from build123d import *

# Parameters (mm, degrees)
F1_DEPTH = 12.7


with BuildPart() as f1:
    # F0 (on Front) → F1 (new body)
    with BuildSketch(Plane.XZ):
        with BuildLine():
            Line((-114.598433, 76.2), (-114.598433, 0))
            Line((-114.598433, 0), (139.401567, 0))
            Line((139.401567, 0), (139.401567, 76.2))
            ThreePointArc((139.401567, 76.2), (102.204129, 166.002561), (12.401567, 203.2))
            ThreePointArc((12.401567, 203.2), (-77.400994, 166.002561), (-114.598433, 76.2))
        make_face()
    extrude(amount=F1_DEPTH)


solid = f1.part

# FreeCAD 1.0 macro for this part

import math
import FreeCAD as App
import Part
import Sketcher
from FreeCAD import Vector
Q = App.Units.Quantity

doc = App.newDocument("Part")
params = doc.addObject("Spreadsheet::Sheet", "Params")
for row, (alias, value) in enumerate([
    ("sketch1_radius", "5 in"),
    ("sketch1_height", "3 in"),
    ("pad1_length", "0.5 in"),
], start=1):
    params.set(f"A{row}", alias)
    params.set(f"B{row}", "=" + value)
    params.setAlias(f"B{row}", alias)

body = doc.addObject("PartDesign::Body", "Body")

sketch1 = body.newObject("Sketcher::SketchObject", "Sketch")
sketch1.AttachmentSupport = (doc.getObject("XZ_Plane"), [""])
sketch1.MapMode = "FlatFace"
sketch1.addGeometry([
    Part.LineSegment(Vector(-115, 76, 0), Vector(-115, 0, 0)),
    Part.LineSegment(Vector(-115, 0, 0), Vector(139, 0, 0)),
    Part.LineSegment(Vector(139, 0, 0), Vector(139, 76, 0)),
    Part.ArcOfCircle(Part.Circle(Vector(12, 76, 0), Vector(0, 0, 1), 127), math.radians(0), math.radians(90)),
    Part.ArcOfCircle(Part.Circle(Vector(12, 76, 0), Vector(0, 0, 1), 127), math.radians(90), math.radians(180)),
], False)
sketch1.addConstraint([
    Sketcher.Constraint("Coincident", 0, 2, 1, 1),
    Sketcher.Constraint("Coincident", 1, 2, 2, 1),
    Sketcher.Constraint("Tangent", 2, 2, 3, 1),
    Sketcher.Constraint("Tangent", 3, 2, 4, 1),
    Sketcher.Constraint("Tangent", 4, 2, 0, 1),
    Sketcher.Constraint("Vertical", 0),
    Sketcher.Constraint("Horizontal", 1),
    Sketcher.Constraint("Vertical", 2),
    Sketcher.Constraint("Equal", 3, 4),
    Sketcher.Constraint("PointOnObject", 0, 2, -1),
    Sketcher.Constraint("Vertical", 4, 3, 3, 2),
    Sketcher.Constraint("Radius", 3, Q("5 in")),
    Sketcher.Constraint("DistanceY", 0, 2, 0, 1, Q("3 in")),
    Sketcher.Constraint("DistanceX", -1, 1, 3, 3, Q("12.401568 mm")),
])
sketch1.setExpression("Constraints[11]", "Params.sketch1_radius")
sketch1.setExpression("Constraints[12]", "Params.sketch1_height")
pad1 = body.newObject("PartDesign::Pad", "Pad")
pad1.Profile = sketch1
pad1.setExpression("Length", "Params.pad1_length")

doc.recompute()
